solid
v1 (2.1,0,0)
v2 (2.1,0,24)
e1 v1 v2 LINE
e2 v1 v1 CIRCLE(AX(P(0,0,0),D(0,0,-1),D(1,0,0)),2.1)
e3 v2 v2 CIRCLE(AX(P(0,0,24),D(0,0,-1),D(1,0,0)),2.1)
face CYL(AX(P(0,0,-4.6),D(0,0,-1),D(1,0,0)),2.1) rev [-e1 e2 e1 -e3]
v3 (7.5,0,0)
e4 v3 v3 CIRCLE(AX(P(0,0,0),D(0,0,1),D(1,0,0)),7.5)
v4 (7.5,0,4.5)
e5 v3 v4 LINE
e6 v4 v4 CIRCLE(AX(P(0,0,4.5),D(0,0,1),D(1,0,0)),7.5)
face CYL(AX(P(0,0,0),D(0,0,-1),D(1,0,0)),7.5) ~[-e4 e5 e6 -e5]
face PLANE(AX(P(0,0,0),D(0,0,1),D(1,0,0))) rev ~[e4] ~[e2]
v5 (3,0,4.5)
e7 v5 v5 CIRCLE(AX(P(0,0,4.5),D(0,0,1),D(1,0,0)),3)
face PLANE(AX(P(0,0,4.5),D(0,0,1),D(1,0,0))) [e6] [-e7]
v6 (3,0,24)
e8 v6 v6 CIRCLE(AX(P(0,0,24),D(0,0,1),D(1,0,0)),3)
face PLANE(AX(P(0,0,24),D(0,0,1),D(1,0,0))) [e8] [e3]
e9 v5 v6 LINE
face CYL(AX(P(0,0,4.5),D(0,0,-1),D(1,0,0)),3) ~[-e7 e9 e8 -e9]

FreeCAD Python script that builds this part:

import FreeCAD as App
import Part
import Sketcher

V = App.Vector

doc = App.newDocument("Part")
body = doc.addObject("PartDesign::Body", "Body")

# Sketch on XY plane
sketch1 = doc.addObject("Sketcher::SketchObject", "Sketch")
body.addObject(sketch1)
sketch1.AttachmentSupport = (doc.XY_Plane, [""])
sketch1.MapMode = "FlatFace"
sketch1.AttachmentOffset = App.Placement(V(0, 0, -4.6), App.Rotation())
sketch1.addGeometry(Part.Circle(V(0, 0, 0), V(0, 0, 1), 2.1), False)
sketch1.addConstraint(Sketcher.Constraint("Coincident", 0, 3, -1, 1))
sketch1.addConstraint(Sketcher.Constraint("Diameter", 0, 4.2))
pad1 = doc.addObject("PartDesign::Pad", "Pad")
body.addObject(pad1)
pad1.Profile = sketch1
pad1.Length = 33.5
body2 = doc.addObject("PartDesign::Body", "Body001")

# Sketch on XY plane
sketch2 = doc.addObject("Sketcher::SketchObject", "Sketch001")
body2.addObject(sketch2)
sketch2.AttachmentSupport = (doc.getObject("XY_Plane001"), [""])
sketch2.MapMode = "FlatFace"
sketch2.AttachmentOffset = App.Placement(V(0, 0, 4.5), App.Rotation())
sketch2.addGeometry(Part.Circle(V(0, 0, 0), V(0, 0, 1), 3), False)
sketch2.addConstraint(Sketcher.Constraint("Coincident", 0, 3, -1, 1))
sketch2.addConstraint(Sketcher.Constraint("Diameter", 0, 6.0))
pad2 = doc.addObject("PartDesign::Pad", "Pad001")
body2.addObject(pad2)
pad2.Profile = sketch2
pad2.Length = 19.5
body3 = doc.addObject("PartDesign::Body", "Body002")

# Sketch on XY plane
sketch3 = doc.addObject("Sketcher::SketchObject", "Sketch002")
body3.addObject(sketch3)
sketch3.AttachmentSupport = (doc.getObject("XY_Plane002"), [""])
sketch3.MapMode = "FlatFace"
sketch3.addGeometry(Part.Circle(V(0, 0, 0), V(0, 0, 1), 8), False)
sketch3.addConstraint(Sketcher.Constraint("Coincident", 0, 3, -1, 1))
sketch3.addConstraint(Sketcher.Constraint("Diameter", 0, 15.0))
pad3 = doc.addObject("PartDesign::Pad", "Pad002")
body3.addObject(pad3)
pad3.Profile = sketch3
pad3.Length = 4.5
doc.recompute()

boolean = doc.addObject("PartDesign::Boolean", "Boolean")
body3.addObject(boolean)
boolean.Type = "Fuse"
boolean.addObjects([body2])
doc.recompute()

boolean2 = doc.addObject("PartDesign::Boolean", "Boolean001")
body3.addObject(boolean2)
boolean2.Type = "Cut"
boolean2.addObjects([body])

doc.recompute()
